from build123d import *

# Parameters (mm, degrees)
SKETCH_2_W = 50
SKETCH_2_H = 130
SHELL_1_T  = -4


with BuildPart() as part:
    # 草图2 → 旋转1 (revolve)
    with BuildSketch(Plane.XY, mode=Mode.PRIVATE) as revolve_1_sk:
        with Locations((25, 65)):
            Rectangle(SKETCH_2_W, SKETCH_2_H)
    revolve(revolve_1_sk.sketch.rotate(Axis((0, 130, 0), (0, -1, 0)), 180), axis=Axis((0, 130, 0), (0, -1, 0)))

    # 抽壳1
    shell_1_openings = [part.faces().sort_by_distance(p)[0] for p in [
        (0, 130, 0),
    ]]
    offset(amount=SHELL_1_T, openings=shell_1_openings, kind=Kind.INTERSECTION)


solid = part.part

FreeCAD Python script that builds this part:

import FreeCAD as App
import Part
import Sketcher
Q = App.Units.Quantity


def faces_at(feature, points):
    """Names of the faces that lie closest to the given points."""
    faces = feature.Shape.Faces
    near = lambda p: min(range(len(faces)), key=lambda i: faces[i].distToShape(Part.Vertex(*p))[0])
    return sorted({f"Face{near(p) + 1}" for p in points})


def add_polygon(sketch, points):
    """Adds a closed chain of lines whose ends are joined by coincident constraints."""
    first, n = sketch.GeometryCount, len(points)
    for a, b in zip(points, points[1:] + points[:1]):
        sketch.addGeometry(Part.LineSegment(App.Vector(*a, 0), App.Vector(*b, 0)), False)
    for i in range(n):
        sketch.addConstraint(Sketcher.Constraint("Coincident", first + i, 2, first + (i + 1) % n, 1))

doc = App.newDocument("Part")
body = doc.addObject("PartDesign::Body", "Body")

# Sketch on XY plane
sketch1 = body.newObject("Sketcher::SketchObject", "Sketch")
sketch1.AttachmentSupport = (doc.getObject("XY_Plane"), [""])
sketch1.MapMode = "FlatFace"
add_polygon(sketch1, [(0, 130), (0, 0), (50, 0), (50, 130)])  # lines 0-3
sketch1.addConstraint([
    Sketcher.Constraint("Vertical", 0),
    Sketcher.Constraint("Horizontal", 1),
    Sketcher.Constraint("Vertical", 2),
    Sketcher.Constraint("Horizontal", 3),
    Sketcher.Constraint("Coincident", 0, 2, -1, 1),
    Sketcher.Constraint("DistanceX", 1, 1, 1, 2, Q("50 mm")),
    Sketcher.Constraint("DistanceY", 0, 2, 0, 1, Q("130 mm")),
])
revolution = body.newObject("PartDesign::Revolution", "Revolution")
revolution.Profile = sketch1
revolution.ReferenceAxis = (sketch1, ["V_Axis"])
revolution.Angle = 360
doc.recompute()

thickness = body.newObject("PartDesign::Thickness", "Thickness")
thickness.Base = (revolution, faces_at(revolution, [(0, 130, 0)]))
thickness.Value = 4
thickness.Reversed = True
thickness.Join = "Intersection"

doc.recompute()
